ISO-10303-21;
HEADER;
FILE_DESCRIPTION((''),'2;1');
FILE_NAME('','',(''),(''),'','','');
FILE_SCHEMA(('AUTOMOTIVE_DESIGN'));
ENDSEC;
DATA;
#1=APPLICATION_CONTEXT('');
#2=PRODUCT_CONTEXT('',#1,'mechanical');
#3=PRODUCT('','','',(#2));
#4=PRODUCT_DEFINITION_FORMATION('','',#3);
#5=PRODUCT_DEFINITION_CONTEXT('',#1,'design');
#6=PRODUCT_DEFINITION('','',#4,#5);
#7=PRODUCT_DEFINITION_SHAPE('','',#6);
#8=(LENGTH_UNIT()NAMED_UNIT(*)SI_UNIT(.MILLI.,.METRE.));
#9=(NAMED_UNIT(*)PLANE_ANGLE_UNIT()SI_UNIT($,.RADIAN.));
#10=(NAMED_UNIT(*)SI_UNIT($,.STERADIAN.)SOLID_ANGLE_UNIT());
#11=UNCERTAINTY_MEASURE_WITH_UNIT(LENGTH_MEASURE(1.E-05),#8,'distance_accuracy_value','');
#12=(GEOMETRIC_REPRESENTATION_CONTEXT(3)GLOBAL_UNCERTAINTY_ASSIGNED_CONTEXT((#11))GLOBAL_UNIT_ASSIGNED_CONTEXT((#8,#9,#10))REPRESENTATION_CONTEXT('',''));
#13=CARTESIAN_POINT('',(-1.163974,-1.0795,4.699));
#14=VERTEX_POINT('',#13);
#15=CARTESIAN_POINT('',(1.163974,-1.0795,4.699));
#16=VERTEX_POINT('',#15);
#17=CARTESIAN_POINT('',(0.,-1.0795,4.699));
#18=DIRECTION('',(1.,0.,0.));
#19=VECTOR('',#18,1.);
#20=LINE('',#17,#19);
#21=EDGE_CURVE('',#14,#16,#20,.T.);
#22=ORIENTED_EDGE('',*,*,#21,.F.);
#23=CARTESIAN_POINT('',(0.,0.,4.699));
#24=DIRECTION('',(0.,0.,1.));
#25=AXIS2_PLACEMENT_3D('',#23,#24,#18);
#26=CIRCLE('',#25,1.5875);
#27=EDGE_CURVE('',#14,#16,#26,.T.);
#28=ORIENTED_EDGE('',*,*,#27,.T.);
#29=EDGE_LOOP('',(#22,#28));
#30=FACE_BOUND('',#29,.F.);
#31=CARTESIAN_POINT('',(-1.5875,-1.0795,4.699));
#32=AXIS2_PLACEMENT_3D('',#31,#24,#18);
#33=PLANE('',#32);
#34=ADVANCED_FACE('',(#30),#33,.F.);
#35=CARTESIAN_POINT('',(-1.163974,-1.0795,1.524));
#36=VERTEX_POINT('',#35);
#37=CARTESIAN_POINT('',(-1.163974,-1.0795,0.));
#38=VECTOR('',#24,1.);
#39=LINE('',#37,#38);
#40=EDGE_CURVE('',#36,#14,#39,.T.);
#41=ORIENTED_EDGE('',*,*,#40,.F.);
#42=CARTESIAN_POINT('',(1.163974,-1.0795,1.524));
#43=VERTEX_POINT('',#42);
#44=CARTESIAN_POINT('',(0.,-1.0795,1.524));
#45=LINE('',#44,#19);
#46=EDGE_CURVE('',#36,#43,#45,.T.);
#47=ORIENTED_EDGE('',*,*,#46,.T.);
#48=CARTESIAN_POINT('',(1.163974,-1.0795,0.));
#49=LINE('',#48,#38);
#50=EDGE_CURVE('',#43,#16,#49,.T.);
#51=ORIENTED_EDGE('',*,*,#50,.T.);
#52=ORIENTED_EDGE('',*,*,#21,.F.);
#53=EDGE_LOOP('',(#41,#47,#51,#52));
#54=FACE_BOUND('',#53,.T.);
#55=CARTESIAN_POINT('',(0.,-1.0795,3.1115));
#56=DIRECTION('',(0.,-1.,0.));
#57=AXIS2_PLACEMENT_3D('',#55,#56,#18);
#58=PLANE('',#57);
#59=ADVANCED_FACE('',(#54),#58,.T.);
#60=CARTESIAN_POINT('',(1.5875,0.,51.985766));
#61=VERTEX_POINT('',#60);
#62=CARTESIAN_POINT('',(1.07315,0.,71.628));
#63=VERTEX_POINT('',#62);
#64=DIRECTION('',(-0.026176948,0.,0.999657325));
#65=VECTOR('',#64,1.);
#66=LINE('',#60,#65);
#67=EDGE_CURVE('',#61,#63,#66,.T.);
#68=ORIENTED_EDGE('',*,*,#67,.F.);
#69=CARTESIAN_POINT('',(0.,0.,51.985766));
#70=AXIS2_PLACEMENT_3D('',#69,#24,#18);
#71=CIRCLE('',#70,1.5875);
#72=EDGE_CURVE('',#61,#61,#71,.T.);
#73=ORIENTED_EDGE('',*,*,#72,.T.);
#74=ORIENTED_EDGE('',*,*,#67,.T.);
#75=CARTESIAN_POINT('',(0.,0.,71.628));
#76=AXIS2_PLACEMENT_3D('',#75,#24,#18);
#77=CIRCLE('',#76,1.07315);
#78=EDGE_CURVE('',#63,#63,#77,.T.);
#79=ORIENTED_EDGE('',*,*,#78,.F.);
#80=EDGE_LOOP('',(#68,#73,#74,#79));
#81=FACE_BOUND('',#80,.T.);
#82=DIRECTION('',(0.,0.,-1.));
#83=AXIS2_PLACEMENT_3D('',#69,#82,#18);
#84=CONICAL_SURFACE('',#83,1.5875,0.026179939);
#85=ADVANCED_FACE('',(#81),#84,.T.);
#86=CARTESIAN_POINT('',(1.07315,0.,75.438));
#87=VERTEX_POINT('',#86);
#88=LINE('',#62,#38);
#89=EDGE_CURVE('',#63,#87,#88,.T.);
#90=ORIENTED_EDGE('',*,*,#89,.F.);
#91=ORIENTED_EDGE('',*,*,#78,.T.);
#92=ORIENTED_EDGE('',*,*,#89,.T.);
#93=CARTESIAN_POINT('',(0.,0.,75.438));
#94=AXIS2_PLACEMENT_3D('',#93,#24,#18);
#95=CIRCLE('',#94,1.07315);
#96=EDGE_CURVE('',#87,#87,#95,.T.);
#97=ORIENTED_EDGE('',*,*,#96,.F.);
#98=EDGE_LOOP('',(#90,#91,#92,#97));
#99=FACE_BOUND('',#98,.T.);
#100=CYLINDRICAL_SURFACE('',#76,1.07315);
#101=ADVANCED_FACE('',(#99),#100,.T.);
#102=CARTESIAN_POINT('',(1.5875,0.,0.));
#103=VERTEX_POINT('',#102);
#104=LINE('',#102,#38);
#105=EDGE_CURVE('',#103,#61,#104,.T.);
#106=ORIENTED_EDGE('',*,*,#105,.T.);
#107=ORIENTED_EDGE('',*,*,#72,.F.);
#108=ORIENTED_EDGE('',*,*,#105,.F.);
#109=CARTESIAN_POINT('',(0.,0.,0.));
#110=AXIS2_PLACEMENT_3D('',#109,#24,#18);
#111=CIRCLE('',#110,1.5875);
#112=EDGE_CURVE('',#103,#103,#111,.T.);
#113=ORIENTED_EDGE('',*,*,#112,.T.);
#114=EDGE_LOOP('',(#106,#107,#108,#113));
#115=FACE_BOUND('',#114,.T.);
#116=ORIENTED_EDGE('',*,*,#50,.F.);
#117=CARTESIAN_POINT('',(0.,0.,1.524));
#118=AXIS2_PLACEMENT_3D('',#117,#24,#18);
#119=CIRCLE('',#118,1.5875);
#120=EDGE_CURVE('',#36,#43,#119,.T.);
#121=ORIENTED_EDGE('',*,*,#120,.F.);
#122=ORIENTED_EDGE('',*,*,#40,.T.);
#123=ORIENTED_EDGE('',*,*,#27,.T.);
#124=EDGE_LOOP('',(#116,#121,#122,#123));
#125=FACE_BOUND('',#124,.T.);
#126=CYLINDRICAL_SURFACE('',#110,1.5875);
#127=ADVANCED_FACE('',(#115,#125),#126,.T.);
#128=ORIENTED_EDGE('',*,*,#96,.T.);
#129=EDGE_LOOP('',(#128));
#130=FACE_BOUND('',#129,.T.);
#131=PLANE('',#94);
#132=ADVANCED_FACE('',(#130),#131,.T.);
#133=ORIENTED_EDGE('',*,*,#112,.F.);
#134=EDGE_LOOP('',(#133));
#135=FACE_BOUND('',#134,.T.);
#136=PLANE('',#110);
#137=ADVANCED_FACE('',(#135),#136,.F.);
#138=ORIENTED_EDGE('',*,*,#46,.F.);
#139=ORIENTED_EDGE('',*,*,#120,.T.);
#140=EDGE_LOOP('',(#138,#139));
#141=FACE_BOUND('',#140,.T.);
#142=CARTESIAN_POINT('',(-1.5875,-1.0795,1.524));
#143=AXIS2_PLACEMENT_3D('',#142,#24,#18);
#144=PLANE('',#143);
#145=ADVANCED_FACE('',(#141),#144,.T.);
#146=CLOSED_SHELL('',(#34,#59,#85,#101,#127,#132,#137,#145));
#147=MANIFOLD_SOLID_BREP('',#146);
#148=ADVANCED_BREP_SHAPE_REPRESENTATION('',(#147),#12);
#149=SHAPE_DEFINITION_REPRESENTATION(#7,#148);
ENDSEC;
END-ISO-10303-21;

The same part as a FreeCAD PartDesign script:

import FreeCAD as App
import Part
import Sketcher
Q = App.Units.Quantity


def add_polygon(sketch, points):
    """Adds a closed chain of lines whose ends are joined by coincident constraints."""
    first, n = sketch.GeometryCount, len(points)
    for a, b in zip(points, points[1:] + points[:1]):
        sketch.addGeometry(Part.LineSegment(App.Vector(*a, 0), App.Vector(*b, 0)), False)
    for i in range(n):
        sketch.addConstraint(Sketcher.Constraint("Coincident", first + i, 2, first + (i + 1) % n, 1))

doc = App.newDocument("Part")
body = doc.addObject("PartDesign::Body", "Body")

# Sketch on XZ plane
sketch1 = body.newObject("Sketcher::SketchObject", "Sketch")
sketch1.AttachmentSupport = (doc.getObject("XZ_Plane"), [""])
sketch1.MapMode = "FlatFace"
add_polygon(sketch1, [(0, 75.438), (0, 0), (1.5875, 0), (1.5875, 51.985766), (1.07315, 71.628), (1.07315, 75.438)])  # lines 0-5
sketch1.addConstraint([
    Sketcher.Constraint("Vertical", 0),
    Sketcher.Constraint("Horizontal", 1),
    Sketcher.Constraint("Vertical", 2),
    Sketcher.Constraint("Vertical", 4),
    Sketcher.Constraint("Horizontal", 5),
    Sketcher.Constraint("Coincident", 0, 2, -1, 1),
    Sketcher.Constraint("DistanceY", 0, 2, 0, 1, Q("2.97 in")),
    Sketcher.Constraint("DistanceY", 4, 1, 4, 2, Q("0.15 in")),
    Sketcher.Constraint("Angle", 3, Q("91.5 deg")),
    Sketcher.Constraint("DistanceX", 1, 1, 1, 2, Q("0.0625 in")),
    Sketcher.Constraint("DistanceX", 5, 2, 5, 1, Q("1.07315 mm")),
])
revolution = body.newObject("PartDesign::Revolution", "Revolution")
revolution.Profile = sketch1
revolution.ReferenceAxis = (sketch1, ["V_Axis"])
revolution.Angle = 360

# Sketch on XZ plane
sketch2 = body.newObject("Sketcher::SketchObject", "Sketch001")
sketch2.AttachmentSupport = (doc.getObject("XZ_Plane"), [""])
sketch2.MapMode = "FlatFace"
sketch2.AttachmentOffset = App.Placement(App.Vector(0, 0, 0.0425 * 25.4), App.Rotation())
add_polygon(sketch2, [(-1.5875, 4.699), (-1.5875, 1.524), (1.5875, 1.524), (1.5875, 4.699)])  # lines 0-3
sketch2.addConstraint([
    Sketcher.Constraint("Vertical", 0),
    Sketcher.Constraint("Horizontal", 1),
    Sketcher.Constraint("Vertical", 2),
    Sketcher.Constraint("Horizontal", 3),
    Sketcher.Constraint("Equal", 3, 0),
    Sketcher.Constraint("DistanceX", 1, 1, 1, 2, Q("0.125 in")),
    Sketcher.Constraint("DistanceY", -1, 1, 0, 2, Q("0.06 in")),
    Sketcher.Constraint("DistanceX", 0, 2, -1, 1, Q("0.0625 in")),
])
pocket1 = body.newObject("PartDesign::Pocket", "Pocket")
pocket1.Profile = sketch2
pocket1.Length = Q("0.05 in")
pocket1.Reversed = True

doc.recompute()
